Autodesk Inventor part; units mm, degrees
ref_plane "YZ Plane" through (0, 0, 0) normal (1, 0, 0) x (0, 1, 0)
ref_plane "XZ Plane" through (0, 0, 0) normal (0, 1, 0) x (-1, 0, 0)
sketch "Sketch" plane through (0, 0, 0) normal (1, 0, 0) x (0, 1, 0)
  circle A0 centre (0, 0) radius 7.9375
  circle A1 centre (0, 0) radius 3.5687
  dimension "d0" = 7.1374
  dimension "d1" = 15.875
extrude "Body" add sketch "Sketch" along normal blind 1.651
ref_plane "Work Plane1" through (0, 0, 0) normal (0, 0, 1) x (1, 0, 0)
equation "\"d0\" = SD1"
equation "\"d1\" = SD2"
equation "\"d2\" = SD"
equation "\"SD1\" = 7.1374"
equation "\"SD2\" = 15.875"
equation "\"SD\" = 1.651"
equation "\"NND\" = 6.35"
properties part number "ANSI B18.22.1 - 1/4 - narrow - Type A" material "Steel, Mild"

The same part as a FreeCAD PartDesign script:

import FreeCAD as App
import Part
import Sketcher
Q = App.Units.Quantity

doc = App.newDocument("Part")
params = doc.addObject("Spreadsheet::Sheet", "Params")
for row, (alias, value) in enumerate([
    ("sketch1_diameter", "0.625 in"),
    ("sketch1_diameter2", "0.281 in"),
    ("pad1_length", "0.065 in"),
], start=1):
    params.set(f"A{row}", alias)
    params.set(f"B{row}", "=" + value)
    params.setAlias(f"B{row}", alias)

body = doc.addObject("PartDesign::Body", "Body")

# Sketch on YZ plane
sketch1 = body.newObject("Sketcher::SketchObject", "Sketch")
sketch1.AttachmentSupport = (doc.getObject("YZ_Plane"), [""])
sketch1.MapMode = "FlatFace"
sketch1.addGeometry(Part.Circle(App.Vector(0, 0, 0), App.Vector(0, 0, 1), 7.9375), False)
sketch1.addGeometry(Part.Circle(App.Vector(0, 0, 0), App.Vector(0, 0, 1), 3.5687), False)
sketch1.addConstraint(Sketcher.Constraint("Coincident", 0, 3, -1, 1))
sketch1.addConstraint(Sketcher.Constraint("Coincident", 1, 3, -1, 1))
sketch1.addConstraint(Sketcher.Constraint("Diameter", 0, Q("0.625 in")))
sketch1.addConstraint(Sketcher.Constraint("Diameter", 1, Q("0.281 in")))
sketch1.setExpression("Constraints[2]", "Params.sketch1_diameter")
sketch1.setExpression("Constraints[3]", "Params.sketch1_diameter2")
pad1 = body.newObject("PartDesign::Pad", "Pad")
pad1.Profile = sketch1
pad1.setExpression("Length", "Params.pad1_length")

doc.recompute()
